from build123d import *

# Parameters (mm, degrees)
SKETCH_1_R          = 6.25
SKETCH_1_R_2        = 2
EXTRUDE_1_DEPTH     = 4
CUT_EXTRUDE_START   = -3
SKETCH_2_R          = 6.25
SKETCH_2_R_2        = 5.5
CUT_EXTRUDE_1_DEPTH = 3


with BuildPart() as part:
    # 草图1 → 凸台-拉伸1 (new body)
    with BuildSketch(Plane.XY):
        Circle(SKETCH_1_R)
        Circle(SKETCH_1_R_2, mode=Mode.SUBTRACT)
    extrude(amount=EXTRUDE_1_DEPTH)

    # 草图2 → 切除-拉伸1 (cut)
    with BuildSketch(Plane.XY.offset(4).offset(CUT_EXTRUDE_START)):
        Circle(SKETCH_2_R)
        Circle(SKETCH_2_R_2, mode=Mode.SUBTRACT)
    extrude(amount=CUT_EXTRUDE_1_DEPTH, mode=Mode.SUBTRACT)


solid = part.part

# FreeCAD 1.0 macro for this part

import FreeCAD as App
import Part
import Sketcher

doc = App.newDocument("Part")
body = doc.addObject("PartDesign::Body", "Body")

# Sketch on XY plane
sketch1 = body.newObject("Sketcher::SketchObject", "Sketch")
sketch1.AttachmentSupport = (doc.getObject("XY_Plane"), [""])
sketch1.MapMode = "FlatFace"
sketch1.addGeometry([
    Part.Circle(App.Vector(0, 0, 0), App.Vector(0, 0, 1), 6.2),
    Part.Circle(App.Vector(0, 0, 0), App.Vector(0, 0, 1), 2),
], False)
sketch1.addConstraint([
    Sketcher.Constraint("Coincident", 0, 3, -1, 1),
    Sketcher.Constraint("Coincident", 1, 3, -1, 1),
    Sketcher.Constraint("Diameter", 1, 4.0),
    Sketcher.Constraint("Diameter", 0, 12.5),
])
pad1 = body.newObject("PartDesign::Pad", "Pad")
pad1.Profile = sketch1
pad1.Length = 4

# Sketch on XY plane
sketch2 = body.newObject("Sketcher::SketchObject", "Sketch001")
sketch2.AttachmentSupport = (doc.getObject("XY_Plane"), [""])
sketch2.MapMode = "FlatFace"
sketch2.AttachmentOffset = App.Placement(App.Vector(0, 0, 1), App.Rotation())
sketch2.addGeometry([
    Part.Circle(App.Vector(0, 0, 0), App.Vector(0, 0, 1), 6),
    Part.Circle(App.Vector(0, 0, 0), App.Vector(0, 0, 1), 6),
], False)
sketch2.addConstraint([
    Sketcher.Constraint("Coincident", 0, 3, -1, 1),
    Sketcher.Constraint("Coincident", 1, 3, -1, 1),
    Sketcher.Constraint("Diameter", 1, 11.0),
    Sketcher.Constraint("Diameter", 0, 12.5),
])
pocket1 = body.newObject("PartDesign::Pocket", "Pocket")
pocket1.Profile = sketch2
pocket1.Length = 3
pocket1.Reversed = True

doc.recompute()
